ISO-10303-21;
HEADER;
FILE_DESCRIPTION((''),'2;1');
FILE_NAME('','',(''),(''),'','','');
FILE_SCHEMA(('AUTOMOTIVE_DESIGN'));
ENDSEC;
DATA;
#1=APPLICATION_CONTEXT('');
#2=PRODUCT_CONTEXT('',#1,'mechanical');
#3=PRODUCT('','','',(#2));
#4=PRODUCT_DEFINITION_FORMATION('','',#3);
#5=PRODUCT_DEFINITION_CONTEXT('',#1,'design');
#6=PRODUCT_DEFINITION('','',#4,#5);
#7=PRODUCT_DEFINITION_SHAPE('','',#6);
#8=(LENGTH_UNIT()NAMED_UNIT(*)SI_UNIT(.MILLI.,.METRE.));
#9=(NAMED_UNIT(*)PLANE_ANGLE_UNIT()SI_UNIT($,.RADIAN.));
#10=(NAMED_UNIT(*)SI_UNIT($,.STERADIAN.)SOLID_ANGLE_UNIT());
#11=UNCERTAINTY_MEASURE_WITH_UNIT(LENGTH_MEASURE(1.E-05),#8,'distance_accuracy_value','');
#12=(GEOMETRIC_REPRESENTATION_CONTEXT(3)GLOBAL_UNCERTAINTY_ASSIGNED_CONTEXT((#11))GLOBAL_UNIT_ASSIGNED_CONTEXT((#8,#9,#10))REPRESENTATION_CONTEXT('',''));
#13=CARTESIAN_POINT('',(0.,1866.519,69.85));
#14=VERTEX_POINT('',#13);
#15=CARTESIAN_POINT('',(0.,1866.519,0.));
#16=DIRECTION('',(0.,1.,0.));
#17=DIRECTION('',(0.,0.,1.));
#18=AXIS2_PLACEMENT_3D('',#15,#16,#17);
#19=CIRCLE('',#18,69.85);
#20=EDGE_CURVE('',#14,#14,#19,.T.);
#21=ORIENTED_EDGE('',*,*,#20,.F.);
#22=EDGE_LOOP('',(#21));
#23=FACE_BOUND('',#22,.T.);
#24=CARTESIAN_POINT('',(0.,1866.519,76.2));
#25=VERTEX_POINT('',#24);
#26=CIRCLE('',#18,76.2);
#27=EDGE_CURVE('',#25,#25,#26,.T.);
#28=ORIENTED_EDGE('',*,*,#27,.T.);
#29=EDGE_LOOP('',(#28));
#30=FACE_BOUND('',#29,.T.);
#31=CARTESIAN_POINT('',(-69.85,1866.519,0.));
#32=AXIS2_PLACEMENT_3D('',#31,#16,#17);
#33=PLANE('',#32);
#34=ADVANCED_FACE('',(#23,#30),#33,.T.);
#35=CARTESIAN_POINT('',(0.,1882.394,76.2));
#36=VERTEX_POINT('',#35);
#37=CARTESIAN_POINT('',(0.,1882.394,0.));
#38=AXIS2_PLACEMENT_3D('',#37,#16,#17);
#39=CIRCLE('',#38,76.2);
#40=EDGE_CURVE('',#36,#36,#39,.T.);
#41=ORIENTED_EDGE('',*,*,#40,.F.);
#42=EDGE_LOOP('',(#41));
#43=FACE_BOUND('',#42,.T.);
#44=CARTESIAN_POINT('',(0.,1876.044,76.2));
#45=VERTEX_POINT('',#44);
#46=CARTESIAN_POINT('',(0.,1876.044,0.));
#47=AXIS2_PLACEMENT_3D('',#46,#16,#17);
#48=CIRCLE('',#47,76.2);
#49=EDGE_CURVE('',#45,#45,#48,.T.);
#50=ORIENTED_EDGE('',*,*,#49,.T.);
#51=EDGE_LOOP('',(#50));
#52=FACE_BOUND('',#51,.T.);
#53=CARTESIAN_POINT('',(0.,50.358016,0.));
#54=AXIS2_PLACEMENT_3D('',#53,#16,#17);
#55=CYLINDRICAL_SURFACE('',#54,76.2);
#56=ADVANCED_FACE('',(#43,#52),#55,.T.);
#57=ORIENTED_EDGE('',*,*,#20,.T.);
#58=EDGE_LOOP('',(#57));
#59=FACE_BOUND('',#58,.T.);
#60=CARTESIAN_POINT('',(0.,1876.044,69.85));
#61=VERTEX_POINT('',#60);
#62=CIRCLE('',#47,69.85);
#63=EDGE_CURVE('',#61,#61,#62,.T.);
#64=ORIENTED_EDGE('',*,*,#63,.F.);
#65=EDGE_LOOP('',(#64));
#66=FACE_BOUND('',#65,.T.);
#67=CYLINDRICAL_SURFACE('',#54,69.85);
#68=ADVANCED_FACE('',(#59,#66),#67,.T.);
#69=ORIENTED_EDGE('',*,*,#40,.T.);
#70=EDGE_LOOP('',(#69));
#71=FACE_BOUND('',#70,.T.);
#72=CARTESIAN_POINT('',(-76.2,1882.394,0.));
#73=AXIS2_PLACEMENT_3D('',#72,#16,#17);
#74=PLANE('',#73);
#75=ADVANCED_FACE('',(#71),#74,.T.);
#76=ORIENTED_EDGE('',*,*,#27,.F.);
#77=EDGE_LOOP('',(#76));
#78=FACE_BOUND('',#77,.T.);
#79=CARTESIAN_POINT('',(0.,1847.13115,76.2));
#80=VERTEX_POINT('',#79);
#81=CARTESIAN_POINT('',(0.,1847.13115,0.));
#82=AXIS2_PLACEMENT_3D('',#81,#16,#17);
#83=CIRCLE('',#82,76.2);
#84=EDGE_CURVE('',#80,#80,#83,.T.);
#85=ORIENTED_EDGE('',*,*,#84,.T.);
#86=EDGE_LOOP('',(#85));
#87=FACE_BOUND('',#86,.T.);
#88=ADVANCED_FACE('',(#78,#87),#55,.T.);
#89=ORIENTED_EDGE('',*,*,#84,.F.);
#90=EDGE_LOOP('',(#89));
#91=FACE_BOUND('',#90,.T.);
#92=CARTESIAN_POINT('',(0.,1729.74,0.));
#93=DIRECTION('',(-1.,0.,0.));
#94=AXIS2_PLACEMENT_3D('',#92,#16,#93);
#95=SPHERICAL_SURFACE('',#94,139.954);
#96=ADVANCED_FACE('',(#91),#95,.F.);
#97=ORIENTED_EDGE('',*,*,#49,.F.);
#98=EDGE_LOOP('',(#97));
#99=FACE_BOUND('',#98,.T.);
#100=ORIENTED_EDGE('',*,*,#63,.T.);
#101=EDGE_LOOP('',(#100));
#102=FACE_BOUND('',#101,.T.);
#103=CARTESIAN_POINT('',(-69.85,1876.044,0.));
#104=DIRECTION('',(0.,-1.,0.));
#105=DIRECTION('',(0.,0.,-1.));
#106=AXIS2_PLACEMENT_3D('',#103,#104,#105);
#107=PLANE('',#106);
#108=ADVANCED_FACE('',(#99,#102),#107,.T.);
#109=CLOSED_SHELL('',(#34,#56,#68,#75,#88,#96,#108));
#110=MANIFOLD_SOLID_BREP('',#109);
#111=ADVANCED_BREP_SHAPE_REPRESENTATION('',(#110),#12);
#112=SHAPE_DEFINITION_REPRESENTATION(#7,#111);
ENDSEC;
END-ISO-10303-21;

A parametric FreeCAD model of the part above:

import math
import FreeCAD as App
import Part
import Sketcher
from FreeCAD import Vector
Q = App.Units.Quantity

doc = App.newDocument("Part")
body = doc.addObject("PartDesign::Body", "Body")

# Sketch on XY plane
sketch1 = body.newObject("Sketcher::SketchObject", "Sketch")
sketch1.AttachmentSupport = (doc.getObject("XY_Plane"), [""])
sketch1.MapMode = "FlatFace"
sketch1.addGeometry([
    Part.LineSegment(Vector(-70, 1876, 0), Vector(-70, 1867, 0)),  # 0
    Part.LineSegment(Vector(-70, 1867, 0), Vector(-76, 1867, 0)),  # 1
    Part.LineSegment(Vector(-76, 1867, 0), Vector(-76, 1847, 0)),  # 2
    Part.ArcOfCircle(Part.Circle(Vector(0, 1730, 0), Vector(0, 0, 1), 140), math.radians(90), math.radians(123)),  # 3
    Part.LineSegment(Vector(0, 1870, 0), Vector(0, 1882, 0)),  # 4
    Part.LineSegment(Vector(0, 1882, 0), Vector(-76, 1882, 0)),  # 5
    Part.LineSegment(Vector(-76, 1882, 0), Vector(-76, 1876, 0)),  # 6
    Part.LineSegment(Vector(-76, 1876, 0), Vector(-70, 1876, 0)),  # 7
], False)
sketch1.addConstraint([
    Sketcher.Constraint("Coincident", 0, 2, 1, 1),
    Sketcher.Constraint("Coincident", 1, 2, 2, 1),
    Sketcher.Constraint("Coincident", 2, 2, 3, 2),
    Sketcher.Constraint("Coincident", 3, 1, 4, 1),
    Sketcher.Constraint("Coincident", 4, 2, 5, 1),
    Sketcher.Constraint("Coincident", 5, 2, 6, 1),
    Sketcher.Constraint("Coincident", 6, 2, 7, 1),
    Sketcher.Constraint("Coincident", 7, 2, 0, 1),
    Sketcher.Constraint("Vertical", 0),
    Sketcher.Constraint("Horizontal", 1),
    Sketcher.Constraint("Vertical", 2),
    Sketcher.Constraint("Vertical", 4),
    Sketcher.Constraint("Horizontal", 5),
    Sketcher.Constraint("Vertical", 6),
    Sketcher.Constraint("Horizontal", 7),
    Sketcher.Constraint("PointOnObject", 3, 3, -2),
    Sketcher.Constraint("PointOnObject", 3, 1, -2),
    Sketcher.Constraint("Vertical", 2, 2, 5, 2),
    Sketcher.Constraint("Equal", 7, 6),
    Sketcher.Constraint("DistanceX", 5, 2, 5, 1, Q("3 in")),
    Sketcher.Constraint("Radius", 3, Q("5.51 in")),
    Sketcher.Constraint("DistanceY", 4, 1, 4, 2, Q("0.5 in")),
    Sketcher.Constraint("DistanceX", 1, 2, 1, 1, Q("0.25 in")),
    Sketcher.Constraint("DistanceY", -1, 1, 3, 3, Q("68.1 in")),
    Sketcher.Constraint("DistanceY", 0, 2, 0, 1, Q("0.375 in")),
])
revolution = body.newObject("PartDesign::Revolution", "Revolution")
revolution.Profile = sketch1
revolution.ReferenceAxis = (sketch1, ["V_Axis"])
revolution.Angle = 360

doc.recompute()
